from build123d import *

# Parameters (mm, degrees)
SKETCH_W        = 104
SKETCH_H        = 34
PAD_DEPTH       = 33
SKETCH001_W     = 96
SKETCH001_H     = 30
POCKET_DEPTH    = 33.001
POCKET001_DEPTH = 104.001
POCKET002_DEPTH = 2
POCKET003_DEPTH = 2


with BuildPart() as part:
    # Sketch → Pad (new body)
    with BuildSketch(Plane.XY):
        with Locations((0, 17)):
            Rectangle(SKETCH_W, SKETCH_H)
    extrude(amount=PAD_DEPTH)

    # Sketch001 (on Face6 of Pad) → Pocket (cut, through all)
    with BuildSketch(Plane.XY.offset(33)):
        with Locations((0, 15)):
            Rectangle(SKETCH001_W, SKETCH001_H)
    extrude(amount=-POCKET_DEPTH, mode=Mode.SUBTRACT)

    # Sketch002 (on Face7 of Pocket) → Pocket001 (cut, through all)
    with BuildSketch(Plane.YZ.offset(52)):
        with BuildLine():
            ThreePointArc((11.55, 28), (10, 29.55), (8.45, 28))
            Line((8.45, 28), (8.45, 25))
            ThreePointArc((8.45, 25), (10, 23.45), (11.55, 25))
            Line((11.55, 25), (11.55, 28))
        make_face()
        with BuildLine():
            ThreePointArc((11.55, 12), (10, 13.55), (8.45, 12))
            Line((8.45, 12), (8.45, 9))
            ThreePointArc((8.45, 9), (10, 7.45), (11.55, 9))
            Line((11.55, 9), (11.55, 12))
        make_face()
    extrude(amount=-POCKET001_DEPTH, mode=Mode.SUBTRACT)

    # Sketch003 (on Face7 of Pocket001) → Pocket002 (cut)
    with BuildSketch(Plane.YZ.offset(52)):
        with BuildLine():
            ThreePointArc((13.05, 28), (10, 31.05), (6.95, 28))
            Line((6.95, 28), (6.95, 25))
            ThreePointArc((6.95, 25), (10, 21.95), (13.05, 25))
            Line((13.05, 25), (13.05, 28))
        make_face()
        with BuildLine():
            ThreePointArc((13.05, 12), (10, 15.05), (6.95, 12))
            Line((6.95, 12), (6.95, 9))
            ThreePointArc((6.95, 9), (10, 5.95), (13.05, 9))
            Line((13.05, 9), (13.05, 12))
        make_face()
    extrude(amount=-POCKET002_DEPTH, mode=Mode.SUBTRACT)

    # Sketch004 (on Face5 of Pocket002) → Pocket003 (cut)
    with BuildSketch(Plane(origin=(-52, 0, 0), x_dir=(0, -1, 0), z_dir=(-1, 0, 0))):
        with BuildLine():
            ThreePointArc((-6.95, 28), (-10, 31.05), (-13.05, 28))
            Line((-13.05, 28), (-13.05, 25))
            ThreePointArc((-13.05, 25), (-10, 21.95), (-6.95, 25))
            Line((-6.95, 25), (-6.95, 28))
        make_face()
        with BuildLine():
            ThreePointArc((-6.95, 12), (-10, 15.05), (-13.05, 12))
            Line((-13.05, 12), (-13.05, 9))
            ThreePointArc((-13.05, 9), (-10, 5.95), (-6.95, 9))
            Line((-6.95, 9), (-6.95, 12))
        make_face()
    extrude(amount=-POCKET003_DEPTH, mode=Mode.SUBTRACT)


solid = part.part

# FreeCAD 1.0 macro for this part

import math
import FreeCAD as App
import Part
import Sketcher

V = App.Vector


def add_polygon(sketch, points):
    """Adds a closed chain of lines whose ends are joined by coincident constraints."""
    first, n = sketch.GeometryCount, len(points)
    for a, b in zip(points, points[1:] + points[:1]):
        sketch.addGeometry(Part.LineSegment(App.Vector(*a, 0), App.Vector(*b, 0)), False)
    for i in range(n):
        sketch.addConstraint(Sketcher.Constraint("Coincident", first + i, 2, first + (i + 1) % n, 1))

doc = App.newDocument("Part")
body = doc.addObject("PartDesign::Body", "Body")

# Sketch on XY plane
sketch1 = body.newObject("Sketcher::SketchObject", "Sketch")
sketch1.AttachmentSupport = (doc.getObject("XY_Plane"), [""])
sketch1.MapMode = "FlatFace"
add_polygon(sketch1, [(-52, 34), (-52, 0), (52, 0), (52, 34)])  # lines 0-3
sketch1.addConstraint([
    Sketcher.Constraint("Vertical", 0),
    Sketcher.Constraint("Horizontal", 1),
    Sketcher.Constraint("Vertical", 2),
    Sketcher.Constraint("Horizontal", 3),
    Sketcher.Constraint("Symmetric", 0, 2, 1, 2, -1, 1),
    Sketcher.Constraint("DistanceX", 1, 1, 1, 2, 104.0),
    Sketcher.Constraint("DistanceY", 0, 2, 0, 1, 34.0),
])
pad1 = body.newObject("PartDesign::Pad", "Pad")
pad1.Profile = sketch1
pad1.Length = 33

# Sketch on XY plane
sketch2 = body.newObject("Sketcher::SketchObject", "Sketch001")
sketch2.AttachmentSupport = (doc.getObject("XY_Plane"), [""])
sketch2.MapMode = "FlatFace"
sketch2.AttachmentOffset = App.Placement(V(0, 0, 33), App.Rotation())
add_polygon(sketch2, [(-48, 30), (-48, 0), (48, 0), (48, 30)])  # lines 0-3
sketch2.addConstraint([
    Sketcher.Constraint("Vertical", 0),
    Sketcher.Constraint("Horizontal", 1),
    Sketcher.Constraint("Vertical", 2),
    Sketcher.Constraint("Horizontal", 3),
    Sketcher.Constraint("Symmetric", 0, 2, 1, 2, -1, 1),
    Sketcher.Constraint("DistanceX", 1, 1, 1, 2, 96.0),
    Sketcher.Constraint("DistanceY", 0, 2, 0, 1, 30.0),
])
pocket1 = body.newObject("PartDesign::Pocket", "Pocket")
pocket1.Profile = sketch2
pocket1.Type = "ThroughAll"

# Sketch on YZ plane
sketch3 = body.newObject("Sketcher::SketchObject", "Sketch002")
sketch3.AttachmentSupport = (doc.getObject("YZ_Plane"), [""])
sketch3.MapMode = "FlatFace"
sketch3.AttachmentOffset = App.Placement(V(0, 0, 52), App.Rotation())
sketch3.addGeometry([
    Part.ArcOfCircle(Part.Circle(V(10, 28, 0), V(0, 0, 1), 1.6), math.radians(0), math.radians(180)),  # 0
    Part.LineSegment(V(8.4, 28, 0), V(8.4, 25, 0)),  # 1
    Part.ArcOfCircle(Part.Circle(V(10, 25, 0), V(0, 0, 1), 1.6), math.radians(180), math.radians(360)),  # 2
    Part.LineSegment(V(11.6, 25, 0), V(11.6, 28, 0)),  # 3
    Part.ArcOfCircle(Part.Circle(V(10, 12, 0), V(0, 0, 1), 1.6), math.radians(0), math.radians(180)),  # 4
    Part.LineSegment(V(8.4, 12, 0), V(8.4, 9, 0)),  # 5
    Part.ArcOfCircle(Part.Circle(V(10, 9, 0), V(0, 0, 1), 1.6), math.radians(180), math.radians(360)),  # 6
    Part.LineSegment(V(11.6, 9, 0), V(11.6, 12, 0)),  # 7
], False)
sketch3.addConstraint([
    Sketcher.Constraint("Tangent", 0, 2, 1, 1),
    Sketcher.Constraint("Tangent", 1, 2, 2, 1),
    Sketcher.Constraint("Tangent", 2, 2, 3, 1),
    Sketcher.Constraint("Tangent", 3, 2, 0, 1),
    Sketcher.Constraint("Tangent", 4, 2, 5, 1),
    Sketcher.Constraint("Tangent", 5, 2, 6, 1),
    Sketcher.Constraint("Tangent", 6, 2, 7, 1),
    Sketcher.Constraint("Tangent", 7, 2, 4, 1),
    Sketcher.Constraint("Vertical", 1),
    Sketcher.Constraint("Vertical", 3),
    Sketcher.Constraint("Vertical", 5),
    Sketcher.Constraint("Vertical", 7),
    Sketcher.Constraint("Equal", 2, 4),
    Sketcher.Constraint("Vertical", 2, 3, 4, 3),
    Sketcher.Constraint("Equal", 3, 5),
    Sketcher.Constraint("DistanceY", 1, 2, 1, 1, 3.0),
    Sketcher.Constraint("Radius", 0, 1.55),
    Sketcher.Constraint("DistanceX", -1, 1, 0, 3, 10.0),
    Sketcher.Constraint("DistanceY", -1, 1, 0, 3, 28.0),
    Sketcher.Constraint("DistanceY", -1, 1, 4, 3, 12.0),
])
pocket2 = body.newObject("PartDesign::Pocket", "Pocket001")
pocket2.Profile = sketch3
pocket2.Type = "ThroughAll"

# Sketch on YZ plane
sketch4 = body.newObject("Sketcher::SketchObject", "Sketch003")
sketch4.AttachmentSupport = (doc.getObject("YZ_Plane"), [""])
sketch4.MapMode = "FlatFace"
sketch4.AttachmentOffset = App.Placement(V(0, 0, 52), App.Rotation())
sketch4.addGeometry([
    Part.ArcOfCircle(Part.Circle(V(10, 28, 0), V(0, 0, 1), 3), math.radians(0), math.radians(180)),  # 0
    Part.LineSegment(V(7, 28, 0), V(7, 25, 0)),  # 1
    Part.ArcOfCircle(Part.Circle(V(10, 25, 0), V(0, 0, 1), 3), math.radians(180), math.radians(360)),  # 2
    Part.LineSegment(V(13.1, 25, 0), V(13.1, 28, 0)),  # 3
    Part.ArcOfCircle(Part.Circle(V(10, 12, 0), V(0, 0, 1), 3), math.radians(0), math.radians(180)),  # 4
    Part.LineSegment(V(7, 12, 0), V(7, 9, 0)),  # 5
    Part.ArcOfCircle(Part.Circle(V(10, 9, 0), V(0, 0, 1), 3), math.radians(180), math.radians(360)),  # 6
    Part.LineSegment(V(13.1, 9, 0), V(13.1, 12, 0)),  # 7
], False)
sketch4.addConstraint([
    Sketcher.Constraint("Tangent", 0, 2, 1, 1),
    Sketcher.Constraint("Tangent", 1, 2, 2, 1),
    Sketcher.Constraint("Tangent", 2, 2, 3, 1),
    Sketcher.Constraint("Tangent", 3, 2, 0, 1),
    Sketcher.Constraint("Tangent", 4, 2, 5, 1),
    Sketcher.Constraint("Tangent", 5, 2, 6, 1),
    Sketcher.Constraint("Tangent", 6, 2, 7, 1),
    Sketcher.Constraint("Tangent", 7, 2, 4, 1),
    Sketcher.Constraint("Vertical", 1),
    Sketcher.Constraint("Vertical", 3),
    Sketcher.Constraint("Vertical", 5),
    Sketcher.Constraint("Vertical", 7),
    Sketcher.Constraint("Equal", 2, 4),
    Sketcher.Constraint("Vertical", 2, 3, 4, 3),
    Sketcher.Constraint("Equal", 3, 5),
    Sketcher.Constraint("DistanceY", 1, 2, 1, 1, 3.0),
    Sketcher.Constraint("Radius", 0, 3.05),
    Sketcher.Constraint("DistanceX", -1, 1, 0, 3, 10.0),
    Sketcher.Constraint("DistanceY", -1, 1, 0, 3, 28.0),
    Sketcher.Constraint("DistanceY", -1, 1, 4, 3, 12.0),
])
pocket3 = body.newObject("PartDesign::Pocket", "Pocket002")
pocket3.Profile = sketch4
pocket3.Length = 2

# Sketch on YZ plane
sketch5 = body.newObject("Sketcher::SketchObject", "Sketch004")
sketch5.AttachmentSupport = (doc.getObject("YZ_Plane"), [""])
sketch5.MapMode = "FlatFace"
sketch5.AttachmentOffset = App.Placement(V(0, 0, -52), App.Rotation())
sketch5.addGeometry([
    Part.ArcOfCircle(Part.Circle(V(10, 28, 0), V(0, 0, 1), 3), math.radians(0), math.radians(180)),  # 0
    Part.LineSegment(V(13.1, 28, 0), V(13.1, 25, 0)),  # 1
    Part.ArcOfCircle(Part.Circle(V(10, 25, 0), V(0, 0, 1), 3), math.radians(180), math.radians(360)),  # 2
    Part.LineSegment(V(7, 25, 0), V(7, 28, 0)),  # 3
    Part.ArcOfCircle(Part.Circle(V(10, 12, 0), V(0, 0, 1), 3), math.radians(0), math.radians(180)),  # 4
    Part.LineSegment(V(13.1, 12, 0), V(13.1, 9, 0)),  # 5
    Part.ArcOfCircle(Part.Circle(V(10, 9, 0), V(0, 0, 1), 3), math.radians(180), math.radians(360)),  # 6
    Part.LineSegment(V(7, 9, 0), V(7, 12, 0)),  # 7
], False)
sketch5.addConstraint([
    Sketcher.Constraint("Tangent", 0, 1, 1, 1),
    Sketcher.Constraint("Tangent", 1, 2, 2, 2),
    Sketcher.Constraint("Tangent", 2, 1, 3, 1),
    Sketcher.Constraint("Tangent", 3, 2, 0, 2),
    Sketcher.Constraint("Tangent", 4, 1, 5, 1),
    Sketcher.Constraint("Tangent", 5, 2, 6, 2),
    Sketcher.Constraint("Tangent", 6, 1, 7, 1),
    Sketcher.Constraint("Tangent", 7, 2, 4, 2),
    Sketcher.Constraint("Vertical", 1),
    Sketcher.Constraint("Vertical", 3),
    Sketcher.Constraint("Vertical", 5),
    Sketcher.Constraint("Vertical", 7),
    Sketcher.Constraint("Equal", 2, 4),
    Sketcher.Constraint("Vertical", 2, 3, 4, 3),
    Sketcher.Constraint("Equal", 3, 5),
    Sketcher.Constraint("DistanceY", 1, 2, 1, 1, 3.0),
    Sketcher.Constraint("Radius", 0, 3.05),
    Sketcher.Constraint("DistanceX", -1, 1, 0, 3, 10.0),
    Sketcher.Constraint("DistanceY", -1, 1, 0, 3, 28.0),
    Sketcher.Constraint("DistanceY", -1, 1, 4, 3, 12.0),
])
pocket4 = body.newObject("PartDesign::Pocket", "Pocket003")
pocket4.Profile = sketch5
pocket4.Length = 2
pocket4.Reversed = True

doc.recompute()
